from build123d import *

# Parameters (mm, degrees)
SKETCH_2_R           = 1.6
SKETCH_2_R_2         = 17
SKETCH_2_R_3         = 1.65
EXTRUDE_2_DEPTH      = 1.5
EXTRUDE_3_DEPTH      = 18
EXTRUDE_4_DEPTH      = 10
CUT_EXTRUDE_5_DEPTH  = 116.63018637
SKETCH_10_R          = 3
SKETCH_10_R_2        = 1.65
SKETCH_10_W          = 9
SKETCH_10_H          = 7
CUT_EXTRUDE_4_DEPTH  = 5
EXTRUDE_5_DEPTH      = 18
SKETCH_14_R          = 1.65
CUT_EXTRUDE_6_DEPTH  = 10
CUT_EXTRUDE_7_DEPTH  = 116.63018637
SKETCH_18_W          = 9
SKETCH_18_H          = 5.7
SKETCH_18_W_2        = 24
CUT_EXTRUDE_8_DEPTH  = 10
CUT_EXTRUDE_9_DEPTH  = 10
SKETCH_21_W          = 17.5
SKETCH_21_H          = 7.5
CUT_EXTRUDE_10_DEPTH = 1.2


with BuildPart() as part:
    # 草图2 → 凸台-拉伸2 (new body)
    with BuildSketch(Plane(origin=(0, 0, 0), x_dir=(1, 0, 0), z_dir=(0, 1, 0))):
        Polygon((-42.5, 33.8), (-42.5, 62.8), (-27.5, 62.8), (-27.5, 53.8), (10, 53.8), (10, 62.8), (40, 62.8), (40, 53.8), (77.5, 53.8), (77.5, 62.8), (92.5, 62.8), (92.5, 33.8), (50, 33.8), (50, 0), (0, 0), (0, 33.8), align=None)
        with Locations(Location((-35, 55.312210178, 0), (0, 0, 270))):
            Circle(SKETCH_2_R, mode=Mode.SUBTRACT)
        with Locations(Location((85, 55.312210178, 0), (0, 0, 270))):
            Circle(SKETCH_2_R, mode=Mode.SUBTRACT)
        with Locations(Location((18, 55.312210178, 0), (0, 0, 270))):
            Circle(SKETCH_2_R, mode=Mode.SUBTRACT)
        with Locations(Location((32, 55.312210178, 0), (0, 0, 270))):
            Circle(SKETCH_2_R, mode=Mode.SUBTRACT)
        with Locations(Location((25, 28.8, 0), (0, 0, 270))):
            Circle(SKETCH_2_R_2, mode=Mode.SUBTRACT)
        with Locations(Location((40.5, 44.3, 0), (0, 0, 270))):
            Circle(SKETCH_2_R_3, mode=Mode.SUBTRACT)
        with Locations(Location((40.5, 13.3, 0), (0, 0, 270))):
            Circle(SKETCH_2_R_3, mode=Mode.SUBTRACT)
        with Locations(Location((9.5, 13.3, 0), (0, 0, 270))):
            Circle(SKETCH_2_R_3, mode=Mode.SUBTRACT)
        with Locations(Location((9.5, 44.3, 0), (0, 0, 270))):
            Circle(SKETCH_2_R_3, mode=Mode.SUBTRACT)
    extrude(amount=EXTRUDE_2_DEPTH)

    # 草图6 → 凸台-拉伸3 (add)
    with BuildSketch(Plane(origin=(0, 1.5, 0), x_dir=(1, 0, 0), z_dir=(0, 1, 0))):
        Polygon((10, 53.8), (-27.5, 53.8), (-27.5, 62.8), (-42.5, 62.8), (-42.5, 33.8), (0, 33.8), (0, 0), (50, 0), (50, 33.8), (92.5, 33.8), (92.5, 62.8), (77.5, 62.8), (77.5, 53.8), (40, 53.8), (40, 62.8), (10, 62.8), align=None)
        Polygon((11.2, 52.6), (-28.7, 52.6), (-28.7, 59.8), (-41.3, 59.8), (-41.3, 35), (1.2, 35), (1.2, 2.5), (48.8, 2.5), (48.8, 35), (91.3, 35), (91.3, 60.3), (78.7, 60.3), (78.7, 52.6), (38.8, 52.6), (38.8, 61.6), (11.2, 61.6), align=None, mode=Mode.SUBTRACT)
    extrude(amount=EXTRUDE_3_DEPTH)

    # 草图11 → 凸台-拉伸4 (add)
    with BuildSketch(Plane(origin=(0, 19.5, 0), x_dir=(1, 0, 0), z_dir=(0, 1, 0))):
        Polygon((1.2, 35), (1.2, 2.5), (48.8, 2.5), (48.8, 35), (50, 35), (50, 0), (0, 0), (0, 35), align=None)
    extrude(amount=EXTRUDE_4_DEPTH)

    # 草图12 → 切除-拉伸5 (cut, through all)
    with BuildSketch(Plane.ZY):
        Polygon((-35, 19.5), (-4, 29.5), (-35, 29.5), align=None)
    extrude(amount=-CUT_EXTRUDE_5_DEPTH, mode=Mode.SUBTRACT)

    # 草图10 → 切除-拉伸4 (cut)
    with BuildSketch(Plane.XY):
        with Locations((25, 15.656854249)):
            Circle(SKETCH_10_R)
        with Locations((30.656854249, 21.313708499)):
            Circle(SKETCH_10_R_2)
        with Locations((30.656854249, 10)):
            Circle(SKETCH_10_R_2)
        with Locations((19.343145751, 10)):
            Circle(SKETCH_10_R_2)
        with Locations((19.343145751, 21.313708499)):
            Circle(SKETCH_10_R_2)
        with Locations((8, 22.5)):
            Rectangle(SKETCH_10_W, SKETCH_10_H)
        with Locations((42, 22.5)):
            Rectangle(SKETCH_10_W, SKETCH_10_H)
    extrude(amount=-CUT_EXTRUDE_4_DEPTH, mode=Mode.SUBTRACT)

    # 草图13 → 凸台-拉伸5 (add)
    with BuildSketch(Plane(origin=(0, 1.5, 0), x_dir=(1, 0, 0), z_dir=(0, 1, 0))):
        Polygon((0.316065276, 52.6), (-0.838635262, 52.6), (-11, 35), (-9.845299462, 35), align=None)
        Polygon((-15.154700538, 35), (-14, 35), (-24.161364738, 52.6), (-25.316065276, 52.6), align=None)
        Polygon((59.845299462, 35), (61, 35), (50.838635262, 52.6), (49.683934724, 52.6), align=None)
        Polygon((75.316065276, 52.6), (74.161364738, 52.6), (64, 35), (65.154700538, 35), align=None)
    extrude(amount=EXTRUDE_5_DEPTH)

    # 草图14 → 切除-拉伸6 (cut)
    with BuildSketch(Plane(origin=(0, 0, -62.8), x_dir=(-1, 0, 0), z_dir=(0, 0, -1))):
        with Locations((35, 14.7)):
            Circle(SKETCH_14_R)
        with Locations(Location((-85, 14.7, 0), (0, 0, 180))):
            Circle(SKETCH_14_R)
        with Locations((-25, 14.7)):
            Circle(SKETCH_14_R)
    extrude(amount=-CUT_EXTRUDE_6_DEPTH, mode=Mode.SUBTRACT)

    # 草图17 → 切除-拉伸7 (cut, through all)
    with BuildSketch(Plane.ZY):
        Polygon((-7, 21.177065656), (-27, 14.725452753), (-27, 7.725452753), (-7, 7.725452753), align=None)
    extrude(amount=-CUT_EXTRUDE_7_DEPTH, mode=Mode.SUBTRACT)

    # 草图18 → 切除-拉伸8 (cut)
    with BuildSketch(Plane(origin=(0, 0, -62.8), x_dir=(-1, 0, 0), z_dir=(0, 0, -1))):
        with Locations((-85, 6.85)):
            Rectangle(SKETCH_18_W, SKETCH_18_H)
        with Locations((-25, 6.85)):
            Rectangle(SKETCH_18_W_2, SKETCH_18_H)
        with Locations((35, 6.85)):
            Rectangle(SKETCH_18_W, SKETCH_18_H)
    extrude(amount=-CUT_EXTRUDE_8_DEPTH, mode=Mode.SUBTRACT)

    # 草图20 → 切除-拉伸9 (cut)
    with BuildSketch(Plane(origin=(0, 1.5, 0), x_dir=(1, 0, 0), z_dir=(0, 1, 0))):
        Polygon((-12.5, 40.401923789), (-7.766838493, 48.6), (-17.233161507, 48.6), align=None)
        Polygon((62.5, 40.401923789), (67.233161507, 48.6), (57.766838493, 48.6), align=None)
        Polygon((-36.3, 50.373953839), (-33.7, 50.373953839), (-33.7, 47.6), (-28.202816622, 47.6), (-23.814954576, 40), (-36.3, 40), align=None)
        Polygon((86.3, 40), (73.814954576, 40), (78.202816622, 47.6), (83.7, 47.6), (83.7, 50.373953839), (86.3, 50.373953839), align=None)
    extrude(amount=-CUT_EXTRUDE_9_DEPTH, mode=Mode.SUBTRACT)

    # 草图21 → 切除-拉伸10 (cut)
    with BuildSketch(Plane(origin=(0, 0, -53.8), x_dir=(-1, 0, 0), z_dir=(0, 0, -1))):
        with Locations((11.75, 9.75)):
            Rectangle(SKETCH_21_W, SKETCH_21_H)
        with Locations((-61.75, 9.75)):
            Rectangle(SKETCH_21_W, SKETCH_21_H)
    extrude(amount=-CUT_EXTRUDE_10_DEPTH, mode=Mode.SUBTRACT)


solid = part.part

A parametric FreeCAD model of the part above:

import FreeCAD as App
import Part
import Sketcher

V = App.Vector
Q = App.Units.Quantity


def add_polygon(sketch, points):
    """Adds a closed chain of lines whose ends are joined by coincident constraints."""
    first, n = sketch.GeometryCount, len(points)
    for a, b in zip(points, points[1:] + points[:1]):
        sketch.addGeometry(Part.LineSegment(App.Vector(*a, 0), App.Vector(*b, 0)), False)
    for i in range(n):
        sketch.addConstraint(Sketcher.Constraint("Coincident", first + i, 2, first + (i + 1) % n, 1))

doc = App.newDocument("Part")
body = doc.addObject("PartDesign::Body", "Body")

# Sketch on XZ plane
sketch1 = body.newObject("Sketcher::SketchObject", "Sketch")
sketch1.AttachmentSupport = (doc.getObject("XZ_Plane"), [""])
sketch1.MapMode = "FlatFace"
add_polygon(sketch1, [(-42.5, -62.8), (-42.5, -33.8), (0, -33.8), (0, 0), (50, 0), (50, -33.8), (92.5, -33.8), (92.5, -62.8), (77.5, -62.8), (77.5, -53.8), (40, -53.8), (40, -62.8), (10, -62.8), (10, -53.8), (-27.5, -53.8), (-27.5, -62.8)])  # lines 0-15
sketch1.addGeometry(Part.Circle(V(40.5, -13.3, 0), V(0, 0, 1), 1.6), False)  # 16
sketch1.addGeometry(Part.Circle(V(9.5, -13.3, 0), V(0, 0, 1), 1.6), False)  # 17
sketch1.addGeometry(Part.Circle(V(25, -28.8, 0), V(0, 0, 1), 17), False)  # 18
sketch1.addGeometry(Part.Circle(V(40.5, -44.3, 0), V(0, 0, 1), 1.6), False)  # 19
sketch1.addGeometry(Part.Circle(V(85, -55.3, 0), V(0, 0, 1), 1.6), False)  # 20
sketch1.addGeometry(Part.Circle(V(32, -55.3, 0), V(0, 0, 1), 1.6), False)  # 21
sketch1.addGeometry(Part.Circle(V(9.5, -44.3, 0), V(0, 0, 1), 1.6), False)  # 22
sketch1.addGeometry(Part.Circle(V(18, -55.3, 0), V(0, 0, 1), 1.6), False)  # 23
sketch1.addGeometry(Part.Circle(V(-35, -55.3, 0), V(0, 0, 1), 1.6), False)  # 24
sketch1.addConstraint([
    Sketcher.Constraint("Vertical", 0),
    Sketcher.Constraint("Horizontal", 1),
    Sketcher.Constraint("Vertical", 2),
    Sketcher.Constraint("Horizontal", 3),
    Sketcher.Constraint("Vertical", 4),
    Sketcher.Constraint("Horizontal", 5),
    Sketcher.Constraint("Vertical", 6),
    Sketcher.Constraint("Horizontal", 7),
    Sketcher.Constraint("Vertical", 8),
    Sketcher.Constraint("Horizontal", 9),
    Sketcher.Constraint("Vertical", 10),
    Sketcher.Constraint("Horizontal", 11),
    Sketcher.Constraint("Vertical", 12),
    Sketcher.Constraint("Horizontal", 13),
    Sketcher.Constraint("Vertical", 14),
    Sketcher.Constraint("Horizontal", 15),
    Sketcher.Constraint("Coincident", 2, 2, -1, 1),
    Sketcher.Constraint("Equal", 16, 17),
    Sketcher.Constraint("Equal", 17, 19),
    Sketcher.Constraint("Equal", 20, 21),
    Sketcher.Constraint("Equal", 19, 22),
    Sketcher.Constraint("Equal", 21, 23),
    Sketcher.Constraint("Equal", 23, 24),
    Sketcher.Constraint("Horizontal", 16, 3, 17, 3),
    Sketcher.Constraint("Horizontal", 20, 3, 21, 3),
    Sketcher.Constraint("Horizontal", 19, 3, 22, 3),
    Sketcher.Constraint("Horizontal", 21, 3, 23, 3),
    Sketcher.Constraint("Horizontal", 23, 3, 24, 3),
    Sketcher.Constraint("Horizontal", 1, 2, 4, 2),
    Sketcher.Constraint("Horizontal", 7, 2, 10, 2),
    Sketcher.Constraint("Horizontal", 9, 2, 12, 2),
    Sketcher.Constraint("Horizontal", 11, 2, 14, 2),
    Sketcher.Constraint("Vertical", 16, 3, 19, 3),
    Sketcher.Constraint("Vertical", 17, 3, 22, 3),
    Sketcher.Constraint("Equal", 1, 5),
    Sketcher.Constraint("Equal", 9, 13),
    Sketcher.Constraint("Equal", 7, 15),
    Sketcher.Constraint("Diameter", 18, Q("34 mm")),
    Sketcher.Constraint("Diameter", 16, Q("3.3 mm")),
    Sketcher.Constraint("Diameter", 20, Q("3.2 mm")),
    Sketcher.Constraint("DistanceX", 3, 1, 3, 2, Q("50 mm")),
    Sketcher.Constraint("DistanceX", 7, 2, 7, 1, Q("15 mm")),
    Sketcher.Constraint("DistanceX", 11, 2, 11, 1, Q("30 mm")),
    Sketcher.Constraint("DistanceY", 0, 1, 0, 2, Q("29 mm")),
    Sketcher.Constraint("DistanceY", 8, 1, 8, 2, Q("9 mm")),
    Sketcher.Constraint("DistanceX", 1, 1, 1, 2, Q("42.5 mm")),
    Sketcher.Constraint("DistanceY", 2, 1, 2, 2, Q("33.8 mm")),
    Sketcher.Constraint("DistanceX", -1, 1, 18, 3, Q("25 mm")),
    Sketcher.Constraint("DistanceX", -1, 1, 20, 3, Q("85 mm")),
    Sketcher.Constraint("DistanceX", -1, 1, 21, 3, Q("32 mm")),
    Sketcher.Constraint("DistanceX", -1, 1, 23, 3, Q("18 mm")),
    Sketcher.Constraint("DistanceX", 24, 3, -1, 1, Q("35 mm")),
    Sketcher.Constraint("DistanceX", 17, 3, 16, 3, Q("31 mm")),
    Sketcher.Constraint("DistanceY", 19, 3, 16, 3, Q("31 mm")),
    Sketcher.Constraint("DistanceX", 0, 2, 22, 3, Q("52 mm")),
    Sketcher.Constraint("DistanceY", 0, 2, 18, 3, Q("5 mm")),
    Sketcher.Constraint("DistanceY", 16, 3, -1, 1, Q("13.3 mm")),
    Sketcher.Constraint("DistanceY", 20, 3, -1, 1, Q("55.31221 mm")),
])
pad1 = body.newObject("PartDesign::Pad", "Pad")
pad1.Profile = sketch1
pad1.Length = 1.5
pad1.Reversed = True

# Sketch on XZ plane
sketch2 = body.newObject("Sketcher::SketchObject", "Sketch001")
sketch2.AttachmentSupport = (doc.getObject("XZ_Plane"), [""])
sketch2.MapMode = "FlatFace"
sketch2.AttachmentOffset = App.Placement(V(0, 0, -1.5), App.Rotation())
add_polygon(sketch2, [(10, -54), (-28, -54), (-28, -63), (-42, -63), (-42, -34), (0, -34), (0, 0), (50, 0), (50, -34), (92, -34), (92, -63), (78, -63), (78, -54), (40, -54), (40, -63), (10, -63)])  # lines 0-15
add_polygon(sketch2, [(-29, -53), (11, -53), (11, -62), (39, -62), (39, -53), (79, -53), (79, -60), (91, -60), (91, -35), (49, -35), (49, -2), (1, -2), (1, -35), (-41, -35), (-41, -60), (-29, -60)])  # lines 16-31
sketch2.addConstraint([
    Sketcher.Constraint("Horizontal", 0),
    Sketcher.Constraint("Vertical", 1),
    Sketcher.Constraint("Horizontal", 2),
    Sketcher.Constraint("Vertical", 3),
    Sketcher.Constraint("Horizontal", 4),
    Sketcher.Constraint("Vertical", 5),
    Sketcher.Constraint("Horizontal", 6),
    Sketcher.Constraint("Vertical", 7),
    Sketcher.Constraint("Horizontal", 8),
    Sketcher.Constraint("Vertical", 9),
    Sketcher.Constraint("Horizontal", 10),
    Sketcher.Constraint("Vertical", 11),
    Sketcher.Constraint("Horizontal", 12),
    Sketcher.Constraint("Vertical", 13),
    Sketcher.Constraint("Horizontal", 14),
    Sketcher.Constraint("Vertical", 15),
    Sketcher.Constraint("Horizontal", 16),
    Sketcher.Constraint("Vertical", 17),
    Sketcher.Constraint("Horizontal", 18),
    Sketcher.Constraint("Vertical", 19),
    Sketcher.Constraint("Horizontal", 20),
    Sketcher.Constraint("Vertical", 21),
    Sketcher.Constraint("Horizontal", 22),
    Sketcher.Constraint("Vertical", 23),
    Sketcher.Constraint("Horizontal", 24),
    Sketcher.Constraint("Vertical", 25),
    Sketcher.Constraint("Horizontal", 26),
    Sketcher.Constraint("Vertical", 27),
    Sketcher.Constraint("Horizontal", 28),
    Sketcher.Constraint("Vertical", 29),
    Sketcher.Constraint("Horizontal", 30),
    Sketcher.Constraint("Vertical", 31),
    Sketcher.Constraint("Coincident", 5, 2, -1, 1),
    Sketcher.Constraint("Horizontal", 4, 2, 7, 2),
    Sketcher.Constraint("Horizontal", 2, 2, 9, 2),
    Sketcher.Constraint("Horizontal", 0, 2, 11, 2),
    Sketcher.Constraint("Horizontal", 10, 2, 13, 2),
    Sketcher.Constraint("Horizontal", 16, 2, 19, 2),
    Sketcher.Constraint("Horizontal", 24, 2, 27, 2),
    Sketcher.Constraint("Equal", 4, 8),
    Sketcher.Constraint("Equal", 2, 10),
    Sketcher.Constraint("Equal", 0, 12),
    Sketcher.Constraint("Equal", 16, 20),
    Sketcher.Constraint("Equal", 8, 24),
    Sketcher.Constraint("Equal", 24, 28),
    Sketcher.Constraint("Equal", 22, 30),
    Sketcher.Constraint("Equal", 15, 17),
    Sketcher.Constraint("DistanceX", 2, 2, 2, 1, Q("15 mm")),
    Sketcher.Constraint("DistanceX", 6, 1, 6, 2, Q("50 mm")),
    Sketcher.Constraint("DistanceX", 14, 2, 14, 1, Q("30 mm")),
    Sketcher.Constraint("DistanceY", 1, 2, 1, 1, Q("9 mm")),
    Sketcher.Constraint("DistanceY", 3, 1, 3, 2, Q("29 mm")),
    Sketcher.Constraint("DistanceX", 0, 2, 0, 1, Q("37.5 mm")),
    Sketcher.Constraint("DistanceX", 16, 1, 16, 2, Q("39.9 mm")),
    Sketcher.Constraint("DistanceX", 18, 1, 18, 2, Q("27.6 mm")),
    Sketcher.Constraint("DistanceX", 22, 1, 22, 2, Q("12.6 mm")),
    Sketcher.Constraint("DistanceY", 5, 1, 5, 2, Q("33.8 mm")),
    Sketcher.Constraint("DistanceY", 21, 2, 21, 1, Q("7.7 mm")),
    Sketcher.Constraint("DistanceY", 23, 1, 23, 2, Q("25.3 mm")),
    Sketcher.Constraint("DistanceY", 25, 1, 25, 2, Q("32.5 mm")),
    Sketcher.Constraint("DistanceY", 29, 2, 29, 1, Q("24.8 mm")),
    Sketcher.Constraint("DistanceY", 23, 2, -1, 1, Q("35 mm")),
    Sketcher.Constraint("DistanceX", -1, 1, 16, 2, Q("11.2 mm")),
])
pad2 = body.newObject("PartDesign::Pad", "Pad001")
pad2.Profile = sketch2
pad2.Length = 18
pad2.Reversed = True

# Sketch on XZ plane
sketch3 = body.newObject("Sketcher::SketchObject", "Sketch002")
sketch3.AttachmentSupport = (doc.getObject("XZ_Plane"), [""])
sketch3.MapMode = "FlatFace"
sketch3.AttachmentOffset = App.Placement(V(0, 0, -19.5), App.Rotation())
add_polygon(sketch3, [(1.2, -2.5), (1.2, -35), (0, -35), (0, 0), (50, 0), (50, -35), (48.8, -35), (48.8, -2.5)])  # lines 0-7
sketch3.addConstraint([
    Sketcher.Constraint("Vertical", 0),
    Sketcher.Constraint("Horizontal", 1),
    Sketcher.Constraint("Vertical", 2),
    Sketcher.Constraint("Horizontal", 3),
    Sketcher.Constraint("Vertical", 4),
    Sketcher.Constraint("Horizontal", 5),
    Sketcher.Constraint("Vertical", 6),
    Sketcher.Constraint("Horizontal", 7),
    Sketcher.Constraint("Coincident", 2, 2, -1, 1),
    Sketcher.Constraint("Horizontal", 1, 2, 4, 2),
    Sketcher.Constraint("Equal", 1, 5),
    Sketcher.Constraint("DistanceX", 3, 1, 3, 2, Q("50 mm")),
    Sketcher.Constraint("DistanceY", 2, 1, 2, 2, Q("35 mm")),
    Sketcher.Constraint("DistanceX", 1, 2, 1, 1, Q("1.2 mm")),
    Sketcher.Constraint("DistanceY", 0, 2, 0, 1, Q("32.5 mm")),
])
pad3 = body.newObject("PartDesign::Pad", "Pad002")
pad3.Profile = sketch3
pad3.Length = 10
pad3.Reversed = True

# Sketch on YZ plane
sketch4 = body.newObject("Sketcher::SketchObject", "Sketch003")
sketch4.AttachmentSupport = (doc.getObject("YZ_Plane"), [""])
sketch4.MapMode = "FlatFace"
add_polygon(sketch4, [(20, -35), (30, -4), (30, -35)])  # lines 0-2
sketch4.addConstraint([
    Sketcher.Constraint("Vertical", 1),
    Sketcher.Constraint("Horizontal", 2),
    Sketcher.Constraint("DistanceX", 2, 2, 2, 1, Q("10 mm")),
    Sketcher.Constraint("DistanceY", 1, 2, 1, 1, Q("31 mm")),
    Sketcher.Constraint("DistanceY", 0, 2, -1, 1, Q("4 mm")),
    Sketcher.Constraint("DistanceX", -1, 1, 0, 2, Q("29.5 mm")),
])
pocket1 = body.newObject("PartDesign::Pocket", "Pocket")
pocket1.Profile = sketch4
pocket1.Type = "ThroughAll"
pocket1.Reversed = True

# Sketch on XY plane
sketch5 = body.newObject("Sketcher::SketchObject", "Sketch004")
sketch5.AttachmentSupport = (doc.getObject("XY_Plane"), [""])
sketch5.MapMode = "FlatFace"
sketch5.addGeometry(Part.Circle(V(25, 15.7, 0), V(0, 0, 1), 3), False)  # 0
sketch5.addGeometry(Part.Circle(V(30.7, 21.3, 0), V(0, 0, 1), 1.6), False)  # 1
sketch5.addGeometry(Part.Circle(V(30.7, 10, 0), V(0, 0, 1), 1.6), False)  # 2
sketch5.addGeometry(Part.Circle(V(19.3, 10, 0), V(0, 0, 1), 1.6), False)  # 3
sketch5.addGeometry(Part.Circle(V(19.3, 21.3, 0), V(0, 0, 1), 1.6), False)  # 4
add_polygon(sketch5, [(3.5, 26), (3.5, 19), (12.5, 19), (12.5, 26)])  # lines 5-8
add_polygon(sketch5, [(37.5, 26), (37.5, 19), (46.5, 19), (46.5, 26)])  # lines 9-12
sketch5.addConstraint([
    Sketcher.Constraint("Vertical", 5),
    Sketcher.Constraint("Horizontal", 6),
    Sketcher.Constraint("Vertical", 7),
    Sketcher.Constraint("Horizontal", 8),
    Sketcher.Constraint("Vertical", 9),
    Sketcher.Constraint("Horizontal", 10),
    Sketcher.Constraint("Vertical", 11),
    Sketcher.Constraint("Horizontal", 12),
    Sketcher.Constraint("Equal", 1, 2),
    Sketcher.Constraint("Equal", 2, 3),
    Sketcher.Constraint("Equal", 3, 4),
    Sketcher.Constraint("Horizontal", 2, 3, 3, 3),
    Sketcher.Constraint("Horizontal", 1, 3, 4, 3),
    Sketcher.Constraint("Horizontal", 6, 2, 9, 2),
    Sketcher.Constraint("Horizontal", 8, 2, 11, 2),
    Sketcher.Constraint("Vertical", 1, 3, 2, 3),
    Sketcher.Constraint("Vertical", 3, 3, 4, 3),
    Sketcher.Constraint("Equal", 8, 10),
    Sketcher.Constraint("Diameter", 0, Q("6 mm")),
    Sketcher.Constraint("Diameter", 1, Q("3.3 mm")),
    Sketcher.Constraint("DistanceX", 6, 1, 6, 2, Q("9 mm")),
    Sketcher.Constraint("DistanceY", 5, 2, 5, 1, Q("7 mm")),
    Sketcher.Constraint("DistanceX", -1, 1, 0, 3, Q("25 mm")),
    Sketcher.Constraint("DistanceY", -1, 1, 2, 3, Q("10 mm")),
    Sketcher.Constraint("DistanceY", -1, 1, 5, 2, Q("19 mm")),
    Sketcher.Constraint("DistanceX", -1, 1, 5, 2, Q("3.5 mm")),
    Sketcher.Constraint("DistanceX", -1, 1, 9, 2, Q("37.5 mm")),
    Sketcher.Constraint("DistanceY", -1, 1, 1, 3, Q("21.313708 mm")),
    Sketcher.Constraint("DistanceX", 3, 3, 2, 3, Q("11.313708 mm")),
    Sketcher.Constraint("DistanceY", -1, 1, 0, 3, Q("15.656854 mm")),
    Sketcher.Constraint("DistanceX", -1, 1, 1, 3, Q("30.656854 mm")),
])
pocket2 = body.newObject("PartDesign::Pocket", "Pocket001")
pocket2.Profile = sketch5
pocket2.Length = 5

# Sketch on XZ plane
sketch6 = body.newObject("Sketcher::SketchObject", "Sketch005")
sketch6.AttachmentSupport = (doc.getObject("XZ_Plane"), [""])
sketch6.MapMode = "FlatFace"
sketch6.AttachmentOffset = App.Placement(V(0, 0, -1.5), App.Rotation())
add_polygon(sketch6, [(0.3, -52.6), (-0.8, -52.6), (-11, -35), (-9.8, -35)])  # lines 0-3
add_polygon(sketch6, [(-15.2, -35), (-14, -35), (-24.2, -52.6), (-25.3, -52.6)])  # lines 4-7
add_polygon(sketch6, [(59.8, -35), (61, -35), (50.8, -52.6), (49.7, -52.6)])  # lines 8-11
add_polygon(sketch6, [(75.3, -52.6), (74.2, -52.6), (64, -35), (65.2, -35)])  # lines 12-15
sketch6.addConstraint([
    Sketcher.Constraint("Horizontal", 0),
    Sketcher.Constraint("Horizontal", 2),
    Sketcher.Constraint("Horizontal", 4),
    Sketcher.Constraint("Horizontal", 6),
    Sketcher.Constraint("Horizontal", 8),
    Sketcher.Constraint("Horizontal", 10),
    Sketcher.Constraint("Horizontal", 12),
    Sketcher.Constraint("Horizontal", 14),
    Sketcher.Constraint("Parallel", 1, 3),
    Sketcher.Constraint("Parallel", 5, 7),
    Sketcher.Constraint("Parallel", 7, 9),
    Sketcher.Constraint("Parallel", 9, 11),
    Sketcher.Constraint("Parallel", 3, 13),
    Sketcher.Constraint("Parallel", 13, 15),
    Sketcher.Constraint("Horizontal", 2, 2, 4, 2),
    Sketcher.Constraint("Horizontal", 3, 2, 5, 2),
    Sketcher.Constraint("Horizontal", 7, 2, 8, 2),
    Sketcher.Constraint("Horizontal", 6, 2, 9, 2),
    Sketcher.Constraint("Horizontal", 10, 2, 12, 2),
    Sketcher.Constraint("Horizontal", 11, 2, 13, 2),
    Sketcher.Constraint("Equal", 2, 4),
    Sketcher.Constraint("Equal", 6, 8),
    Sketcher.Constraint("Equal", 10, 12),
    Sketcher.Constraint("Equal", 3, 5),
    Sketcher.Constraint("Angle", 1, Q("120 deg")),
    Sketcher.Constraint("DistanceX", 1, 2, -1, 1, Q("11 mm")),
    Sketcher.Constraint("DistanceY", 1, 2, -1, 1, Q("35 mm")),
    Sketcher.Constraint("DistanceX", 4, 2, -1, 1, Q("14 mm")),
    Sketcher.Constraint("DistanceX", -1, 1, 8, 2, Q("61 mm")),
    Sketcher.Constraint("DistanceX", -1, 1, 13, 2, Q("64 mm")),
    Sketcher.Constraint("DistanceY", 0, 2, -1, 1, Q("52.6 mm")),
    Sketcher.Constraint("DistanceX", 0, 2, 0, 1, Q("1.154701 mm")),
])
pad4 = body.newObject("PartDesign::Pad", "Pad003")
pad4.Profile = sketch6
pad4.Length = 18
pad4.Reversed = True

# Sketch on XY plane
sketch7 = body.newObject("Sketcher::SketchObject", "Sketch006")
sketch7.AttachmentSupport = (doc.getObject("XY_Plane"), [""])
sketch7.MapMode = "FlatFace"
sketch7.AttachmentOffset = App.Placement(V(0, 0, -62.8), App.Rotation())
sketch7.addGeometry([
    Part.Circle(V(-35, 14.7, 0), V(0, 0, 1), 1.6),
    Part.Circle(V(85, 14.7, 0), V(0, 0, 1), 1.6),
    Part.Circle(V(25, 14.7, 0), V(0, 0, 1), 1.6),
], False)
sketch7.addConstraint([
    Sketcher.Constraint("Equal", 0, 1),
    Sketcher.Constraint("Equal", 1, 2),
    Sketcher.Constraint("Horizontal", 0, 3, 1, 3),
    Sketcher.Constraint("Horizontal", 1, 3, 2, 3),
    Sketcher.Constraint("Diameter", 0, Q("3.3 mm")),
    Sketcher.Constraint("DistanceX", 0, 3, -1, 1, Q("35 mm")),
    Sketcher.Constraint("DistanceX", -1, 1, 1, 3, Q("85 mm")),
    Sketcher.Constraint("DistanceX", -1, 1, 2, 3, Q("25 mm")),
    Sketcher.Constraint("DistanceY", -1, 1, 0, 3, Q("14.7 mm")),
])
pocket3 = body.newObject("PartDesign::Pocket", "Pocket002")
pocket3.Profile = sketch7
pocket3.Length = 10
pocket3.Reversed = True

# Sketch on YZ plane
sketch8 = body.newObject("Sketcher::SketchObject", "Sketch007")
sketch8.AttachmentSupport = (doc.getObject("YZ_Plane"), [""])
sketch8.MapMode = "FlatFace"
add_polygon(sketch8, [(21, -7), (15, -27), (8, -27), (8, -7)])  # lines 0-3
sketch8.addConstraint([
    Sketcher.Constraint("Horizontal", 1),
    Sketcher.Constraint("Vertical", 2),
    Sketcher.Constraint("Horizontal", 3),
    Sketcher.Constraint("DistanceX", 1, 2, 1, 1, Q("7 mm")),
    Sketcher.Constraint("DistanceY", 2, 1, 2, 2, Q("20 mm")),
    Sketcher.Constraint("DistanceY", 0, 2, -1, 1, Q("27 mm")),
    Sketcher.Constraint("DistanceX", 3, 1, 3, 2, Q("13.451613 mm")),
    Sketcher.Constraint("DistanceX", -1, 1, 0, 2, Q("14.725453 mm")),
])
pocket4 = body.newObject("PartDesign::Pocket", "Pocket003")
pocket4.Profile = sketch8
pocket4.Type = "ThroughAll"
pocket4.Reversed = True

# Sketch on XY plane
sketch9 = body.newObject("Sketcher::SketchObject", "Sketch008")
sketch9.AttachmentSupport = (doc.getObject("XY_Plane"), [""])
sketch9.MapMode = "FlatFace"
sketch9.AttachmentOffset = App.Placement(V(0, 0, -62.8), App.Rotation())
add_polygon(sketch9, [(90, 10), (90, 4), (80, 4), (80, 10)])  # lines 0-3
add_polygon(sketch9, [(37, 10), (37, 4), (13, 4), (13, 10)])  # lines 4-7
add_polygon(sketch9, [(-30, 10), (-30, 4), (-40, 4), (-40, 10)])  # lines 8-11
sketch9.addConstraint([
    Sketcher.Constraint("Vertical", 0),
    Sketcher.Constraint("Horizontal", 1),
    Sketcher.Constraint("Vertical", 2),
    Sketcher.Constraint("Horizontal", 3),
    Sketcher.Constraint("Vertical", 4),
    Sketcher.Constraint("Horizontal", 5),
    Sketcher.Constraint("Vertical", 6),
    Sketcher.Constraint("Horizontal", 7),
    Sketcher.Constraint("Vertical", 8),
    Sketcher.Constraint("Horizontal", 9),
    Sketcher.Constraint("Vertical", 10),
    Sketcher.Constraint("Horizontal", 11),
    Sketcher.Constraint("Horizontal", 1, 2, 4, 2),
    Sketcher.Constraint("Horizontal", 3, 2, 6, 2),
    Sketcher.Constraint("Horizontal", 5, 2, 8, 2),
    Sketcher.Constraint("Horizontal", 7, 2, 10, 2),
    Sketcher.Constraint("Equal", 3, 9),
    Sketcher.Constraint("DistanceX", 1, 2, 1, 1, Q("9 mm")),
    Sketcher.Constraint("DistanceX", 5, 2, 5, 1, Q("24 mm")),
    Sketcher.Constraint("DistanceY", 0, 2, 0, 1, Q("5.7 mm")),
    Sketcher.Constraint("DistanceY", -1, 1, 0, 2, Q("4 mm")),
    Sketcher.Constraint("DistanceX", -1, 1, 4, 2, Q("37 mm")),
    Sketcher.Constraint("DistanceX", 8, 2, 1, 2, Q("111 mm")),
    Sketcher.Constraint("DistanceX", -1, 1, 0, 2, Q("89.5 mm")),
])
pocket5 = body.newObject("PartDesign::Pocket", "Pocket004")
pocket5.Profile = sketch9
pocket5.Length = 10
pocket5.Reversed = True

# Sketch on XZ plane
sketch10 = body.newObject("Sketcher::SketchObject", "Sketch009")
sketch10.AttachmentSupport = (doc.getObject("XZ_Plane"), [""])
sketch10.MapMode = "FlatFace"
sketch10.AttachmentOffset = App.Placement(V(0, 0, -1.5), App.Rotation())
add_polygon(sketch10, [(-12.5, -40.4), (-7.8, -48.6), (-17.2, -48.6)])  # lines 0-2
add_polygon(sketch10, [(62.5, -40.4), (67.2, -48.6), (57.8, -48.6)])  # lines 3-5
add_polygon(sketch10, [(-33.7, -50.4), (-36.3, -50.4), (-36.3, -40), (-23.8, -40), (-28.2, -47.6), (-33.7, -47.6)])  # lines 6-11
add_polygon(sketch10, [(73.8, -40), (86.3, -40), (86.3, -50.4), (83.7, -50.4), (83.7, -47.6), (78.2, -47.6)])  # lines 12-17
sketch10.addConstraint([
    Sketcher.Constraint("Horizontal", 1),
    Sketcher.Constraint("Horizontal", 4),
    Sketcher.Constraint("Horizontal", 6),
    Sketcher.Constraint("Vertical", 7),
    Sketcher.Constraint("Horizontal", 8),
    Sketcher.Constraint("Horizontal", 10),
    Sketcher.Constraint("Vertical", 11),
    Sketcher.Constraint("Horizontal", 12),
    Sketcher.Constraint("Vertical", 13),
    Sketcher.Constraint("Horizontal", 14),
    Sketcher.Constraint("Vertical", 15),
    Sketcher.Constraint("Horizontal", 16),
    Sketcher.Constraint("Parallel", 0, 3),
    Sketcher.Constraint("Parallel", 2, 5),
    Sketcher.Constraint("Parallel", 5, 9),
    Sketcher.Constraint("Parallel", 3, 17),
    Sketcher.Constraint("Horizontal", 1, 2, 3, 2),
    Sketcher.Constraint("Horizontal", 2, 2, 5, 2),
    Sketcher.Constraint("Horizontal", 8, 2, 12, 2),
    Sketcher.Constraint("Horizontal", 11, 2, 13, 2),
    Sketcher.Constraint("Horizontal", 10, 2, 15, 2),
    Sketcher.Constraint("Equal", 8, 12),
    Sketcher.Constraint("Equal", 6, 14),
    Sketcher.Constraint("Equal", 10, 16),
    Sketcher.Constraint("Angle", 0, Q("-60 deg")),
    Sketcher.Constraint("DistanceX", 6, 2, 6, 1, Q("2.6 mm")),
    Sketcher.Constraint("DistanceY", 7, 2, -1, 1, Q("40 mm")),
    Sketcher.Constraint("DistanceX", 0, 2, 3, 2, Q("75 mm")),
    Sketcher.Constraint("DistanceY", 1, 2, 9, 2, Q("1 mm")),
    Sketcher.Constraint("DistanceY", 0, 2, -1, 1, Q("48.6 mm")),
    Sketcher.Constraint("DistanceX", 2, 2, -1, 1, Q("12.5 mm")),
    Sketcher.Constraint("DistanceX", 6, 2, -1, 1, Q("36.3 mm")),
    Sketcher.Constraint("DistanceX", -1, 1, 12, 2, Q("86.3 mm")),
    Sketcher.Constraint("DistanceX", 1, 2, 1, 1, Q("9.466323 mm")),
    Sketcher.Constraint("DistanceX", 8, 1, 8, 2, Q("12.485045 mm")),
    Sketcher.Constraint("DistanceY", 7, 1, 7, 2, Q("10.373954 mm")),
])
pocket6 = body.newObject("PartDesign::Pocket", "Pocket005")
pocket6.Profile = sketch10
pocket6.Length = 10
pocket6.Reversed = True

# Sketch on XY plane
sketch11 = body.newObject("Sketcher::SketchObject", "Sketch010")
sketch11.AttachmentSupport = (doc.getObject("XY_Plane"), [""])
sketch11.MapMode = "FlatFace"
sketch11.AttachmentOffset = App.Placement(V(0, 0, -53.8), App.Rotation())
add_polygon(sketch11, [(-3, 14), (-3, 6), (-20, 6), (-20, 14)])  # lines 0-3
add_polygon(sketch11, [(70, 14), (70, 6), (53, 6), (53, 14)])  # lines 4-7
sketch11.addConstraint([
    Sketcher.Constraint("Vertical", 0),
    Sketcher.Constraint("Horizontal", 1),
    Sketcher.Constraint("Vertical", 2),
    Sketcher.Constraint("Horizontal", 3),
    Sketcher.Constraint("Vertical", 4),
    Sketcher.Constraint("Horizontal", 5),
    Sketcher.Constraint("Vertical", 6),
    Sketcher.Constraint("Horizontal", 7),
    Sketcher.Constraint("Horizontal", 1, 2, 4, 2),
    Sketcher.Constraint("Horizontal", 3, 2, 6, 2),
    Sketcher.Constraint("Equal", 3, 5),
    Sketcher.Constraint("DistanceX", 1, 2, 1, 1, Q("17.5 mm")),
    Sketcher.Constraint("DistanceY", 0, 2, 0, 1, Q("7.5 mm")),
    Sketcher.Constraint("DistanceX", 0, 2, -1, 1, Q("3 mm")),
    Sketcher.Constraint("DistanceY", -1, 1, 0, 2, Q("6 mm")),
    Sketcher.Constraint("DistanceX", -1, 1, 5, 2, Q("53 mm")),
])
pocket7 = body.newObject("PartDesign::Pocket", "Pocket006")
pocket7.Profile = sketch11
pocket7.Length = 1.2
pocket7.Reversed = True

doc.recompute()
